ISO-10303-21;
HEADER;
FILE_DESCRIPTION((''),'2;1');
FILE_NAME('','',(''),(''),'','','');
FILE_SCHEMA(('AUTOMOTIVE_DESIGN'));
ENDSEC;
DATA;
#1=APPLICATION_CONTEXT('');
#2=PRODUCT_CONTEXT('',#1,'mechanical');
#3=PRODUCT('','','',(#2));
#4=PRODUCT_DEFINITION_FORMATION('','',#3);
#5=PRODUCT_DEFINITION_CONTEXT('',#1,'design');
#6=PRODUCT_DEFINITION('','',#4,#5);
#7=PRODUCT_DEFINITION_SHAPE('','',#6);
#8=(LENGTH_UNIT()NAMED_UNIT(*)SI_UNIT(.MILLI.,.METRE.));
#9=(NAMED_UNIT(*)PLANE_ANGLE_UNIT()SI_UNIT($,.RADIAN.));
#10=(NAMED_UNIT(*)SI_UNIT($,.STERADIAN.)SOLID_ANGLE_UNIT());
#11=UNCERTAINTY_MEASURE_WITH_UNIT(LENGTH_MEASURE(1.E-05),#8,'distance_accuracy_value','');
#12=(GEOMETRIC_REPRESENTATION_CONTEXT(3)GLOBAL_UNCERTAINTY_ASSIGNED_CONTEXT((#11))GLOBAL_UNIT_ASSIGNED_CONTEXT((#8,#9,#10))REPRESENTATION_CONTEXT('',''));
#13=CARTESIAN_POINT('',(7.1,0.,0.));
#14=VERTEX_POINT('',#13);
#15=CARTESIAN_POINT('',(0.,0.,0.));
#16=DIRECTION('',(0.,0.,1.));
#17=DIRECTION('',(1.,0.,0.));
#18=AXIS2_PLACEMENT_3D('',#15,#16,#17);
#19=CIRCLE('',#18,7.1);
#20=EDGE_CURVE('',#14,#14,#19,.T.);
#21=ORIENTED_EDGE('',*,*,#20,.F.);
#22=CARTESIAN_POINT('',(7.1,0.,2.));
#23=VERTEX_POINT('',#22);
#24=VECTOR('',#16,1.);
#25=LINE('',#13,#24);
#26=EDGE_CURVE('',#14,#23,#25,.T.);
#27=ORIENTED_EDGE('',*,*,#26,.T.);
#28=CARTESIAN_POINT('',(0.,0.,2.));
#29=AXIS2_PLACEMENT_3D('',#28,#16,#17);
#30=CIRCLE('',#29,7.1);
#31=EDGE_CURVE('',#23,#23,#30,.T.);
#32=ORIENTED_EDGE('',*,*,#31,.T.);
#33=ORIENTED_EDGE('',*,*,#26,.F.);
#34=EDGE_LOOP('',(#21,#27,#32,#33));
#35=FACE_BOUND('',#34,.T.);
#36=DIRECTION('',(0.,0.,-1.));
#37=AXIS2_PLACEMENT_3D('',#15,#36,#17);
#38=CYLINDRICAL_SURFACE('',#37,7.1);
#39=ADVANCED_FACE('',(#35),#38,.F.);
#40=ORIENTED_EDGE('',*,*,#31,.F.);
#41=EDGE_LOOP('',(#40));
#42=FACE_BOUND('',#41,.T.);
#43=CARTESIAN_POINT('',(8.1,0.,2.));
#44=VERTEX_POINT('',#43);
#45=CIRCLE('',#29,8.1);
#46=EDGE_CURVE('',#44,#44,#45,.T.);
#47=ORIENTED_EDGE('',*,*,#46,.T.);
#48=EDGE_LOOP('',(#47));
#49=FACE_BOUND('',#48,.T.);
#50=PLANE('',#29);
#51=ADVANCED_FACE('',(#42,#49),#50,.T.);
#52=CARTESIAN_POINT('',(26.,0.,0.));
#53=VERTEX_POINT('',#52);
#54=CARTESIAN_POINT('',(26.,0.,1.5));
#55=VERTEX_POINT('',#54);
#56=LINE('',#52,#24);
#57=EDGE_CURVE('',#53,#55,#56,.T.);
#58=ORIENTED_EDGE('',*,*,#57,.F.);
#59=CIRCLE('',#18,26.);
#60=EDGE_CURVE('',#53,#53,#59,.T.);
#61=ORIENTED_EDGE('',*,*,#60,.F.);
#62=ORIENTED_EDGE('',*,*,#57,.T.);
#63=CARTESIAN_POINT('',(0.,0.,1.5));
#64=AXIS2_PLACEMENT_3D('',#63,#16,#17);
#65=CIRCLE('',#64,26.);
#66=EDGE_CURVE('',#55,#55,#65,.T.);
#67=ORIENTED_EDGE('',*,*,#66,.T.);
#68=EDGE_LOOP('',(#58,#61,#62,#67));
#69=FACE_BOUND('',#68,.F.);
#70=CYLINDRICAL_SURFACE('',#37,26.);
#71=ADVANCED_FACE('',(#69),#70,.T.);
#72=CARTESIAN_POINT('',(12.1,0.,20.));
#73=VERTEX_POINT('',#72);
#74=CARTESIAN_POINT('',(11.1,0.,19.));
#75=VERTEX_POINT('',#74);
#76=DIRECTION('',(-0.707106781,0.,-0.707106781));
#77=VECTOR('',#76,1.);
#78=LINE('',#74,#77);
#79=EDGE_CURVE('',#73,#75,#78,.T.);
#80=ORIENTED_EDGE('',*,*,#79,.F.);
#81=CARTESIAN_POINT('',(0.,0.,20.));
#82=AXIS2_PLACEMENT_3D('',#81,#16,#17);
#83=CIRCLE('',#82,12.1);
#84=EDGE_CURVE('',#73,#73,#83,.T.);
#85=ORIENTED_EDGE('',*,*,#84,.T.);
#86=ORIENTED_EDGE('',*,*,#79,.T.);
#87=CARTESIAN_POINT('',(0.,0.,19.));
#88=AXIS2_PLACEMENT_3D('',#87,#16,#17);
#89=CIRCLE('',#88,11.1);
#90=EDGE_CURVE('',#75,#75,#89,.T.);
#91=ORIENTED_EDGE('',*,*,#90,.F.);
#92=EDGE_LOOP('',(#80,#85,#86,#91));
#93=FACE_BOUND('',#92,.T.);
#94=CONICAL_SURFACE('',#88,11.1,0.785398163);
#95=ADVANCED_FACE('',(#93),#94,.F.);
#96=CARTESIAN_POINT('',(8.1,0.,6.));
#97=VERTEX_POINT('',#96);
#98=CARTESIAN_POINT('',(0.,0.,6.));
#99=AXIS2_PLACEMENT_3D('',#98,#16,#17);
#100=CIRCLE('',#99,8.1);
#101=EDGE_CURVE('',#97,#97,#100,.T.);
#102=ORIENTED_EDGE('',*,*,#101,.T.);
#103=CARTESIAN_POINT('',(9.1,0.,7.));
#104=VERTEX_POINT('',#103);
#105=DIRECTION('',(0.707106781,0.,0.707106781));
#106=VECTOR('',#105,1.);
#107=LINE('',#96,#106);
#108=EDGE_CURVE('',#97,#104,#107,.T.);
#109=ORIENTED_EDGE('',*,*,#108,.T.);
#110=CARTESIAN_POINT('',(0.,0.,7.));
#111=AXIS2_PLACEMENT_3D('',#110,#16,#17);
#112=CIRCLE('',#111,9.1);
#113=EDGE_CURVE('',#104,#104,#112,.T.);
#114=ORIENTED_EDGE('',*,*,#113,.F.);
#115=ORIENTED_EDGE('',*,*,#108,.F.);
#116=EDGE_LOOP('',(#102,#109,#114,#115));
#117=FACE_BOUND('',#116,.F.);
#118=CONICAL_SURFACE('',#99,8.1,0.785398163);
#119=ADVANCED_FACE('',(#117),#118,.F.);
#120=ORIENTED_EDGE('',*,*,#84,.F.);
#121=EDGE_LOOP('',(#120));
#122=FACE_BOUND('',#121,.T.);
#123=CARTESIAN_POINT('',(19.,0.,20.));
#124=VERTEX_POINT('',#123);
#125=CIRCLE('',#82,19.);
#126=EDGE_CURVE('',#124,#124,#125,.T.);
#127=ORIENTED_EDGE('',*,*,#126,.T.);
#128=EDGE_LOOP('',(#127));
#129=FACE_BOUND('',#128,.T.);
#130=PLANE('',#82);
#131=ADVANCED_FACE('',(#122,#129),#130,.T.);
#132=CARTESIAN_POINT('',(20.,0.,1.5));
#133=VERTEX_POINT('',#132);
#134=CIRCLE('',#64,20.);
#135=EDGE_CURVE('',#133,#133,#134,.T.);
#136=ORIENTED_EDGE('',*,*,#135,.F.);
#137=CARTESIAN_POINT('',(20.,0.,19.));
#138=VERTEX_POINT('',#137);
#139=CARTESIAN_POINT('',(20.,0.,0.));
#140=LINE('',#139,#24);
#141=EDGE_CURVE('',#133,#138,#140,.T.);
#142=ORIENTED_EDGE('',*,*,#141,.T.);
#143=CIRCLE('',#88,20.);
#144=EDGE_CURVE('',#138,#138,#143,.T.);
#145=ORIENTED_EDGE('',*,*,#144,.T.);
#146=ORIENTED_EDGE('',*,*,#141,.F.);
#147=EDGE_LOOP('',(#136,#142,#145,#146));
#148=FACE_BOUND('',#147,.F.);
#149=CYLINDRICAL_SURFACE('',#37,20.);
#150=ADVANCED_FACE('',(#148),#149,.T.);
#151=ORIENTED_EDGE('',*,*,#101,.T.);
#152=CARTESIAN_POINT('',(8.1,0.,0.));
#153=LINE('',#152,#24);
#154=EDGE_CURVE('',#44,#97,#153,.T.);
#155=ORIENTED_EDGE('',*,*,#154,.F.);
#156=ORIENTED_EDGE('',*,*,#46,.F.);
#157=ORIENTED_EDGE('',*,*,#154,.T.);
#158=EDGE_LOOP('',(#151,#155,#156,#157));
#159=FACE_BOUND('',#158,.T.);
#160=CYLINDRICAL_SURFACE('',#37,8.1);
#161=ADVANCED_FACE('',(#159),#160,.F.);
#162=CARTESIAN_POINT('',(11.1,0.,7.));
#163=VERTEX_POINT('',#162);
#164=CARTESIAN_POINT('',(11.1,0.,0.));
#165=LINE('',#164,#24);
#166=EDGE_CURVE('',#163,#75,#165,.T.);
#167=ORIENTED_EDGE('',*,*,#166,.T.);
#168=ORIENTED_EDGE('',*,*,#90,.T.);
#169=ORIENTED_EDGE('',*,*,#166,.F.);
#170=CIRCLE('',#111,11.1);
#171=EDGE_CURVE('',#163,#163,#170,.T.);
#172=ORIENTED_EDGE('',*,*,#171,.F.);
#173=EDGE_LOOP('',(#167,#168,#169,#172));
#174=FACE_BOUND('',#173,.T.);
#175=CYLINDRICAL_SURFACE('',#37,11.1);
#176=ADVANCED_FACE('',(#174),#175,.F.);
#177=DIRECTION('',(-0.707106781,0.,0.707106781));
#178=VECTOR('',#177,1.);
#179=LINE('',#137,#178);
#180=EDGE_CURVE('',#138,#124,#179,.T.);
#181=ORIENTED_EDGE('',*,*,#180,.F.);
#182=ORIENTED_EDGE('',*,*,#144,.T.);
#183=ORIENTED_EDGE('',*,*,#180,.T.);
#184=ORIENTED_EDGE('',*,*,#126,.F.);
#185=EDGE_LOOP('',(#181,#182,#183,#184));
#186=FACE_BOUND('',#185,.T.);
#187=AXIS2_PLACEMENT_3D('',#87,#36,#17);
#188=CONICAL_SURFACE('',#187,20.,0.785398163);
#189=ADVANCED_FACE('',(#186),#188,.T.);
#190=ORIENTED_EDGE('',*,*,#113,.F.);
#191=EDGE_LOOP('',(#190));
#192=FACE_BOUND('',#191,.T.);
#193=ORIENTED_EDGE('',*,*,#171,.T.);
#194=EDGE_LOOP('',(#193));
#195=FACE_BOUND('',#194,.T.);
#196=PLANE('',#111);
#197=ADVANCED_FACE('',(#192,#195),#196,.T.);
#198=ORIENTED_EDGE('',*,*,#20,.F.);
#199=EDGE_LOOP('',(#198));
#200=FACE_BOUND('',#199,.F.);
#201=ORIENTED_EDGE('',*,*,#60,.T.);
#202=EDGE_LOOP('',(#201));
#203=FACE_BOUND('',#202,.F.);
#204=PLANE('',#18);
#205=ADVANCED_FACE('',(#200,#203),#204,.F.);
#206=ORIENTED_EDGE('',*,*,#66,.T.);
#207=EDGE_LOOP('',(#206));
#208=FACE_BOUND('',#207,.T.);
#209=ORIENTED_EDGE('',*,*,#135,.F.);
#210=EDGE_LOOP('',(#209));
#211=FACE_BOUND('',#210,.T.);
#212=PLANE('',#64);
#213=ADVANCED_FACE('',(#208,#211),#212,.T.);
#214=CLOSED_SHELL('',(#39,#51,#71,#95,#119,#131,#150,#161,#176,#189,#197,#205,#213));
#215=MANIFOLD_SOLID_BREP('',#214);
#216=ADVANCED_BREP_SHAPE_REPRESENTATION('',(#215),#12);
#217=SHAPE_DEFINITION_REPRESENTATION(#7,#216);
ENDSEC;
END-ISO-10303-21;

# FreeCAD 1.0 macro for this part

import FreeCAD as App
import Part
import Sketcher

V = App.Vector


def edges_at(feature, points):
    """Names of the edges that pass closest to the given points."""
    edges = feature.Shape.Edges
    near = lambda p: min(range(len(edges)), key=lambda i: edges[i].distToShape(Part.Vertex(*p))[0])
    return sorted({f"Edge{near(p) + 1}" for p in points})

doc = App.newDocument("Part")
body = doc.addObject("PartDesign::Body", "Body")

# Sketch on XY plane
sketch1 = body.newObject("Sketcher::SketchObject", "Sketch")
sketch1.AttachmentSupport = (doc.getObject("XY_Plane"), [""])
sketch1.MapMode = "FlatFace"
sketch1.addGeometry([
    Part.Circle(V(0, 0, 0), V(0, 0, 1), 8.1),
    Part.Circle(V(0, 0, 0), V(0, 0, 1), 7.1),
], False)
sketch1.addConstraint([
    Sketcher.Constraint("Coincident", 0, 3, -1, 1),
    Sketcher.Constraint("Coincident", 1, 3, -1, 1),
    Sketcher.Constraint("Diameter", 0, 16.2),
    Sketcher.Constraint("Diameter", 1, 14.2),
])
pad1 = body.newObject("PartDesign::Pad", "Pad")
pad1.Profile = sketch1
pad1.Length = 2

# Sketch on XY plane
sketch2 = body.newObject("Sketcher::SketchObject", "Sketch001")
sketch2.AttachmentSupport = (doc.getObject("XY_Plane"), [""])
sketch2.MapMode = "FlatFace"
sketch2.addGeometry([
    Part.Circle(V(0, 0, 0), V(0, 0, 1), 11.1),
    Part.Circle(V(0, 0, 0), V(0, 0, 1), 8.1),
], False)
sketch2.addConstraint([
    Sketcher.Constraint("Coincident", 0, 3, -1, 1),
    Sketcher.Constraint("Coincident", 1, 3, -1, 1),
    Sketcher.Constraint("Diameter", 0, 22.2),
    Sketcher.Constraint("Diameter", 1, 16.2),
])
pad2 = body.newObject("PartDesign::Pad", "Pad001")
pad2.Profile = sketch2
pad2.Length = 7

# Sketch on XY plane
sketch3 = body.newObject("Sketcher::SketchObject", "Sketch002")
sketch3.AttachmentSupport = (doc.getObject("XY_Plane"), [""])
sketch3.MapMode = "FlatFace"
sketch3.addGeometry([
    Part.Circle(V(0, 0, 0), V(0, 0, 1), 20),
    Part.Circle(V(0, 0, 0), V(0, 0, 1), 11.1),
], False)
sketch3.addConstraint([
    Sketcher.Constraint("Coincident", 0, 3, -1, 1),
    Sketcher.Constraint("Coincident", 1, 3, -1, 1),
    Sketcher.Constraint("Diameter", 0, 40.0),
    Sketcher.Constraint("Diameter", 1, 22.2),
])
pad3 = body.newObject("PartDesign::Pad", "Pad002")
pad3.Profile = sketch3
pad3.Length = 20

# Sketch on XY plane
sketch4 = body.newObject("Sketcher::SketchObject", "Sketch003")
sketch4.AttachmentSupport = (doc.getObject("XY_Plane"), [""])
sketch4.MapMode = "FlatFace"
sketch4.addGeometry([
    Part.Circle(V(0, 0, 0), V(0, 0, 1), 26),
    Part.Circle(V(0, 0, 0), V(0, 0, 1), 20),
], False)
sketch4.addConstraint([
    Sketcher.Constraint("Coincident", 0, 3, -1, 1),
    Sketcher.Constraint("Coincident", 1, 3, -1, 1),
    Sketcher.Constraint("Diameter", 0, 52.0),
    Sketcher.Constraint("Diameter", 1, 40.0),
])
pad4 = body.newObject("PartDesign::Pad", "Pad003")
pad4.Profile = sketch4
pad4.Length = 1.5
doc.recompute()

chamfer = body.newObject("PartDesign::Chamfer", "Chamfer")
chamfer.Base = (pad4, edges_at(pad4, [(-20, 0, 20), (-11.1, 0, 20), (-8.1, 0, 7)]))
chamfer.Size = 1

doc.recompute()
